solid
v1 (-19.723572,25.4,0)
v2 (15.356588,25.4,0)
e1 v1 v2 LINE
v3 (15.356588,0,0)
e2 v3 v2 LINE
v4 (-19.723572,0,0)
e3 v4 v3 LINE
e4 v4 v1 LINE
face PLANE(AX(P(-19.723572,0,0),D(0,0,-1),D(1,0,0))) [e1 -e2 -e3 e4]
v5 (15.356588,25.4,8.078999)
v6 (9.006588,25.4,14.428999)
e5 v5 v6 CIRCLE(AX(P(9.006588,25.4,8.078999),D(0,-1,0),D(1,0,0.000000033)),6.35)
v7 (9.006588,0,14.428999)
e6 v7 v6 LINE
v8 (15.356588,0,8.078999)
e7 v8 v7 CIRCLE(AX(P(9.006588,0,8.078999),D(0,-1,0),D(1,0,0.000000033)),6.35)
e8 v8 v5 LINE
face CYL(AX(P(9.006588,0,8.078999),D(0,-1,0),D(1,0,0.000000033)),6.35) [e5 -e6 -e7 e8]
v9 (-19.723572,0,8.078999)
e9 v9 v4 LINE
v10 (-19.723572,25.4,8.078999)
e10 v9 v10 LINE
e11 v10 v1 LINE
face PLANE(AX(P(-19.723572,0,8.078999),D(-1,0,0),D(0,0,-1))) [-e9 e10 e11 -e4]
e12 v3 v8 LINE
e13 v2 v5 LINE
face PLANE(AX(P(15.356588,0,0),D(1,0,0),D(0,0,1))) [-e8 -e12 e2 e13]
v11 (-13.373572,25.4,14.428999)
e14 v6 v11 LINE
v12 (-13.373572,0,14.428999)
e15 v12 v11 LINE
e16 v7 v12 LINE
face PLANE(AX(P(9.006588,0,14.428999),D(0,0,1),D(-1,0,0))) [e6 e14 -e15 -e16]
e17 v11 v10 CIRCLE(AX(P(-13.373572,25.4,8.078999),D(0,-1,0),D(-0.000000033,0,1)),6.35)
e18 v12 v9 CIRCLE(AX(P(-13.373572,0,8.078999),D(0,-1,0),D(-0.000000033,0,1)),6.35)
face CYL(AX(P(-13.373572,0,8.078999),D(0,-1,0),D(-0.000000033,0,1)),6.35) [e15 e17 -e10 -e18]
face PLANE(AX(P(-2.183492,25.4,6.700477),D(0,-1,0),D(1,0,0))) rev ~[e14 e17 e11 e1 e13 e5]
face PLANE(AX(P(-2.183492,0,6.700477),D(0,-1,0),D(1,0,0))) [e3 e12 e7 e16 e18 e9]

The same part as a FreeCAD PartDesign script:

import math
import FreeCAD as App
import Part
import Sketcher
Q = App.Units.Quantity

doc = App.newDocument("Part")
params = doc.addObject("Spreadsheet::Sheet", "Params")
for row, (alias, value) in enumerate([
    ("sketch1_radius", "0.25 in"),
    ("pad1_length", "1 in"),
], start=1):
    params.set(f"A{row}", alias)
    params.set(f"B{row}", "=" + value)
    params.setAlias(f"B{row}", alias)

body = doc.addObject("PartDesign::Body", "Body")

sketch1 = body.newObject("Sketcher::SketchObject", "Sketch")
sketch1.AttachmentSupport = (doc.getObject("XZ_Plane"), [""])
sketch1.MapMode = "FlatFace"
sketch1.addGeometry(Part.LineSegment(App.Vector(-19.723572, 8.078999, 0), App.Vector(-19.723572, 0, 0)), False)
sketch1.addGeometry(Part.LineSegment(App.Vector(-19.723572, 0, 0), App.Vector(15.356588, 0, 0)), False)
sketch1.addGeometry(Part.LineSegment(App.Vector(15.356588, 0, 0), App.Vector(15.356588, 8.078999, 0)), False)
sketch1.addGeometry(Part.ArcOfCircle(Part.Circle(App.Vector(9.006588, 8.078999, 0), App.Vector(0, 0, 1), 6.35), math.radians(0.000002), math.radians(89.999998)), False)
sketch1.addGeometry(Part.LineSegment(App.Vector(9.006588, 14.428999, 0), App.Vector(-13.373572, 14.428999, 0)), False)
sketch1.addGeometry(Part.ArcOfCircle(Part.Circle(App.Vector(-13.373572, 8.078999, 0), App.Vector(0, 0, 1), 6.35), math.radians(90.000002), math.radians(179.999998)), False)
sketch1.addConstraint(Sketcher.Constraint("Coincident", 0, 2, 1, 1))
sketch1.addConstraint(Sketcher.Constraint("Coincident", 1, 2, 2, 1))
sketch1.addConstraint(Sketcher.Constraint("Tangent", 2, 2, 3, 1))
sketch1.addConstraint(Sketcher.Constraint("Tangent", 3, 2, 4, 1))
sketch1.addConstraint(Sketcher.Constraint("Tangent", 4, 2, 5, 1))
sketch1.addConstraint(Sketcher.Constraint("Tangent", 5, 2, 0, 1))
sketch1.addConstraint(Sketcher.Constraint("Vertical", 0))
sketch1.addConstraint(Sketcher.Constraint("Horizontal", 1))
sketch1.addConstraint(Sketcher.Constraint("Vertical", 2))
sketch1.addConstraint(Sketcher.Constraint("Horizontal", 4))
sketch1.addConstraint(Sketcher.Constraint("Equal", 3, 5))
sketch1.addConstraint(Sketcher.Constraint("PointOnObject", 0, 2, -1))
sketch1.addConstraint(Sketcher.Constraint("Radius", 3, Q("0.25 in")))
sketch1.addConstraint(Sketcher.Constraint("DistanceY", 0, 2, 0, 1, 8.078999))
sketch1.addConstraint(Sketcher.Constraint("DistanceX", 1, 1, 1, 2, 35.08016))
sketch1.addConstraint(Sketcher.Constraint("DistanceX", 5, 3, -1, 1, 13.373572))
sketch1.setExpression("Constraints[12]", "Params.sketch1_radius")
pad1 = body.newObject("PartDesign::Pad", "Pad")
pad1.Profile = sketch1
pad1.setExpression("Length", "Params.pad1_length")
pad1.Reversed = True

doc.recompute()
